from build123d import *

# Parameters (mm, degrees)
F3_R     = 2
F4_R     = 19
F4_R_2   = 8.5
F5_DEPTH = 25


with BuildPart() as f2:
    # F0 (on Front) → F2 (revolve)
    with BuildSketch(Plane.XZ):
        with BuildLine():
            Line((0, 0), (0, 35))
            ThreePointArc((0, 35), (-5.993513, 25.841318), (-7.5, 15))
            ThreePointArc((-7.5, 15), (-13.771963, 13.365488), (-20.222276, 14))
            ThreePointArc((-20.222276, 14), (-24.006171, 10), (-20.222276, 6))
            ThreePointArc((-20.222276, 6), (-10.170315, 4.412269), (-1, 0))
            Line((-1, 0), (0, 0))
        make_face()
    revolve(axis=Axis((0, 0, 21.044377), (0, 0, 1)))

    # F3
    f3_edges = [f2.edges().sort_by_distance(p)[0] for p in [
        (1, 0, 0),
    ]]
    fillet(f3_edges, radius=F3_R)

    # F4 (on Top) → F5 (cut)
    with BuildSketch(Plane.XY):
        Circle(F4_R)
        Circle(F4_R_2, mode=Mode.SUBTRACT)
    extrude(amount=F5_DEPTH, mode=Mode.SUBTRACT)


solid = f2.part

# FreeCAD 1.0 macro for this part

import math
import FreeCAD as App
import Part
import Sketcher

V = App.Vector


def edges_at(feature, points):
    """Names of the edges that pass closest to the given points."""
    edges = feature.Shape.Edges
    near = lambda p: min(range(len(edges)), key=lambda i: edges[i].distToShape(Part.Vertex(*p))[0])
    return sorted({f"Edge{near(p) + 1}" for p in points})

doc = App.newDocument("Part")
body = doc.addObject("PartDesign::Body", "Body")
body.AllowCompound = True

sketch1 = doc.addObject("Sketcher::SketchObject", "Sketch")
body.addObject(sketch1)
sketch1.AttachmentSupport = (doc.XZ_Plane, [""])
sketch1.MapMode = "FlatFace"
sketch1.addGeometry([
    Part.LineSegment(V(0, 0, 0), V(0, 35, 0)),
    Part.ArcOfCircle(Part.Circle(V(17.414718, 17.063231, 0), V(0, 0, 1), 25.000002), math.radians(134.153949), math.radians(184.733961)),
    Part.ArcOfCircle(Part.Circle(V(-15.218285, 31.765996, 0), V(0, 0, 1), 18.457263), math.radians(-105.730467), math.radians(-65.280856)),
    Part.ArcOfCircle(Part.Circle(V(-20, 10, 0), V(0, 0, 1), 4.006171), math.radians(93.180599), math.radians(266.819401)),
    Part.ArcOfCircle(Part.Circle(V(-20.598914, -28.997963, 0), V(0, 0, 1), 34.99999), math.radians(55.946337), math.radians(89.383424)),
    Part.LineSegment(V(-1, 0, 0), V(0, 0, 0)),
], False)
sketch1.addConstraint([
    Sketcher.Constraint("Coincident", 0, 2, 1, 1),
    Sketcher.Constraint("Coincident", 1, 2, 2, 2),
    Sketcher.Constraint("Coincident", 2, 1, 3, 1),
    Sketcher.Constraint("Coincident", 3, 2, 4, 2),
    Sketcher.Constraint("Coincident", 4, 1, 5, 1),
    Sketcher.Constraint("Coincident", 5, 2, 0, 1),
    Sketcher.Constraint("Vertical", 0),
    Sketcher.Constraint("Horizontal", 5),
    Sketcher.Constraint("Coincident", 5, 2, -1, 1),
    Sketcher.Constraint("Vertical", 2, 1, 3, 2),
    Sketcher.Constraint("Radius", 1, 25.000002),
    Sketcher.Constraint("DistanceX", 5, 1, 5, 2, 1.0),
    Sketcher.Constraint("DistanceY", 0, 1, 0, 2, 35.0),
    Sketcher.Constraint("DistanceX", 3, 3, -1, 1, 20.0),
    Sketcher.Constraint("DistanceY", -1, 1, 3, 3, 10.0),
    Sketcher.Constraint("DistanceY", -1, 1, 1, 2, 15.0),
    Sketcher.Constraint("DistanceY", -1, 1, 2, 1, 14.0),
    Sketcher.Constraint("DistanceX", 1, 2, -1, 1, 7.5),
    Sketcher.Constraint("Radius", 3, 4.006171),
    Sketcher.Constraint("Radius", 4, 34.99999),
    Sketcher.Constraint("Radius", 2, 18.457263),
])
revolution = doc.addObject("PartDesign::Revolution", "Revolution")
body.addObject(revolution)
revolution.Profile = sketch1
revolution.ReferenceAxis = (sketch1, ["V_Axis"])
revolution.Angle = 360
doc.recompute()

fillet = doc.addObject("PartDesign::Fillet", "Fillet")
body.addObject(fillet)
fillet.Base = (revolution, edges_at(revolution, [(1, 0, 0)]))
fillet.Radius = 2

sketch2 = doc.addObject("Sketcher::SketchObject", "Sketch001")
body.addObject(sketch2)
sketch2.AttachmentSupport = (doc.XY_Plane, [""])
sketch2.MapMode = "FlatFace"
sketch2.addGeometry([
    Part.Circle(V(0, 0, 0), V(0, 0, 1), 19),
    Part.Circle(V(0, 0, 0), V(0, 0, 1), 8.5),
], False)
sketch2.addConstraint([
    Sketcher.Constraint("Coincident", 0, 3, -1, 1),
    Sketcher.Constraint("Coincident", 1, 3, -1, 1),
    Sketcher.Constraint("Diameter", 0, 38.0),
    Sketcher.Constraint("Diameter", 1, 17.0),
])
pocket1 = doc.addObject("PartDesign::Pocket", "Pocket")
body.addObject(pocket1)
pocket1.Profile = sketch2
pocket1.Length = 25
pocket1.Reversed = True

doc.recompute()
